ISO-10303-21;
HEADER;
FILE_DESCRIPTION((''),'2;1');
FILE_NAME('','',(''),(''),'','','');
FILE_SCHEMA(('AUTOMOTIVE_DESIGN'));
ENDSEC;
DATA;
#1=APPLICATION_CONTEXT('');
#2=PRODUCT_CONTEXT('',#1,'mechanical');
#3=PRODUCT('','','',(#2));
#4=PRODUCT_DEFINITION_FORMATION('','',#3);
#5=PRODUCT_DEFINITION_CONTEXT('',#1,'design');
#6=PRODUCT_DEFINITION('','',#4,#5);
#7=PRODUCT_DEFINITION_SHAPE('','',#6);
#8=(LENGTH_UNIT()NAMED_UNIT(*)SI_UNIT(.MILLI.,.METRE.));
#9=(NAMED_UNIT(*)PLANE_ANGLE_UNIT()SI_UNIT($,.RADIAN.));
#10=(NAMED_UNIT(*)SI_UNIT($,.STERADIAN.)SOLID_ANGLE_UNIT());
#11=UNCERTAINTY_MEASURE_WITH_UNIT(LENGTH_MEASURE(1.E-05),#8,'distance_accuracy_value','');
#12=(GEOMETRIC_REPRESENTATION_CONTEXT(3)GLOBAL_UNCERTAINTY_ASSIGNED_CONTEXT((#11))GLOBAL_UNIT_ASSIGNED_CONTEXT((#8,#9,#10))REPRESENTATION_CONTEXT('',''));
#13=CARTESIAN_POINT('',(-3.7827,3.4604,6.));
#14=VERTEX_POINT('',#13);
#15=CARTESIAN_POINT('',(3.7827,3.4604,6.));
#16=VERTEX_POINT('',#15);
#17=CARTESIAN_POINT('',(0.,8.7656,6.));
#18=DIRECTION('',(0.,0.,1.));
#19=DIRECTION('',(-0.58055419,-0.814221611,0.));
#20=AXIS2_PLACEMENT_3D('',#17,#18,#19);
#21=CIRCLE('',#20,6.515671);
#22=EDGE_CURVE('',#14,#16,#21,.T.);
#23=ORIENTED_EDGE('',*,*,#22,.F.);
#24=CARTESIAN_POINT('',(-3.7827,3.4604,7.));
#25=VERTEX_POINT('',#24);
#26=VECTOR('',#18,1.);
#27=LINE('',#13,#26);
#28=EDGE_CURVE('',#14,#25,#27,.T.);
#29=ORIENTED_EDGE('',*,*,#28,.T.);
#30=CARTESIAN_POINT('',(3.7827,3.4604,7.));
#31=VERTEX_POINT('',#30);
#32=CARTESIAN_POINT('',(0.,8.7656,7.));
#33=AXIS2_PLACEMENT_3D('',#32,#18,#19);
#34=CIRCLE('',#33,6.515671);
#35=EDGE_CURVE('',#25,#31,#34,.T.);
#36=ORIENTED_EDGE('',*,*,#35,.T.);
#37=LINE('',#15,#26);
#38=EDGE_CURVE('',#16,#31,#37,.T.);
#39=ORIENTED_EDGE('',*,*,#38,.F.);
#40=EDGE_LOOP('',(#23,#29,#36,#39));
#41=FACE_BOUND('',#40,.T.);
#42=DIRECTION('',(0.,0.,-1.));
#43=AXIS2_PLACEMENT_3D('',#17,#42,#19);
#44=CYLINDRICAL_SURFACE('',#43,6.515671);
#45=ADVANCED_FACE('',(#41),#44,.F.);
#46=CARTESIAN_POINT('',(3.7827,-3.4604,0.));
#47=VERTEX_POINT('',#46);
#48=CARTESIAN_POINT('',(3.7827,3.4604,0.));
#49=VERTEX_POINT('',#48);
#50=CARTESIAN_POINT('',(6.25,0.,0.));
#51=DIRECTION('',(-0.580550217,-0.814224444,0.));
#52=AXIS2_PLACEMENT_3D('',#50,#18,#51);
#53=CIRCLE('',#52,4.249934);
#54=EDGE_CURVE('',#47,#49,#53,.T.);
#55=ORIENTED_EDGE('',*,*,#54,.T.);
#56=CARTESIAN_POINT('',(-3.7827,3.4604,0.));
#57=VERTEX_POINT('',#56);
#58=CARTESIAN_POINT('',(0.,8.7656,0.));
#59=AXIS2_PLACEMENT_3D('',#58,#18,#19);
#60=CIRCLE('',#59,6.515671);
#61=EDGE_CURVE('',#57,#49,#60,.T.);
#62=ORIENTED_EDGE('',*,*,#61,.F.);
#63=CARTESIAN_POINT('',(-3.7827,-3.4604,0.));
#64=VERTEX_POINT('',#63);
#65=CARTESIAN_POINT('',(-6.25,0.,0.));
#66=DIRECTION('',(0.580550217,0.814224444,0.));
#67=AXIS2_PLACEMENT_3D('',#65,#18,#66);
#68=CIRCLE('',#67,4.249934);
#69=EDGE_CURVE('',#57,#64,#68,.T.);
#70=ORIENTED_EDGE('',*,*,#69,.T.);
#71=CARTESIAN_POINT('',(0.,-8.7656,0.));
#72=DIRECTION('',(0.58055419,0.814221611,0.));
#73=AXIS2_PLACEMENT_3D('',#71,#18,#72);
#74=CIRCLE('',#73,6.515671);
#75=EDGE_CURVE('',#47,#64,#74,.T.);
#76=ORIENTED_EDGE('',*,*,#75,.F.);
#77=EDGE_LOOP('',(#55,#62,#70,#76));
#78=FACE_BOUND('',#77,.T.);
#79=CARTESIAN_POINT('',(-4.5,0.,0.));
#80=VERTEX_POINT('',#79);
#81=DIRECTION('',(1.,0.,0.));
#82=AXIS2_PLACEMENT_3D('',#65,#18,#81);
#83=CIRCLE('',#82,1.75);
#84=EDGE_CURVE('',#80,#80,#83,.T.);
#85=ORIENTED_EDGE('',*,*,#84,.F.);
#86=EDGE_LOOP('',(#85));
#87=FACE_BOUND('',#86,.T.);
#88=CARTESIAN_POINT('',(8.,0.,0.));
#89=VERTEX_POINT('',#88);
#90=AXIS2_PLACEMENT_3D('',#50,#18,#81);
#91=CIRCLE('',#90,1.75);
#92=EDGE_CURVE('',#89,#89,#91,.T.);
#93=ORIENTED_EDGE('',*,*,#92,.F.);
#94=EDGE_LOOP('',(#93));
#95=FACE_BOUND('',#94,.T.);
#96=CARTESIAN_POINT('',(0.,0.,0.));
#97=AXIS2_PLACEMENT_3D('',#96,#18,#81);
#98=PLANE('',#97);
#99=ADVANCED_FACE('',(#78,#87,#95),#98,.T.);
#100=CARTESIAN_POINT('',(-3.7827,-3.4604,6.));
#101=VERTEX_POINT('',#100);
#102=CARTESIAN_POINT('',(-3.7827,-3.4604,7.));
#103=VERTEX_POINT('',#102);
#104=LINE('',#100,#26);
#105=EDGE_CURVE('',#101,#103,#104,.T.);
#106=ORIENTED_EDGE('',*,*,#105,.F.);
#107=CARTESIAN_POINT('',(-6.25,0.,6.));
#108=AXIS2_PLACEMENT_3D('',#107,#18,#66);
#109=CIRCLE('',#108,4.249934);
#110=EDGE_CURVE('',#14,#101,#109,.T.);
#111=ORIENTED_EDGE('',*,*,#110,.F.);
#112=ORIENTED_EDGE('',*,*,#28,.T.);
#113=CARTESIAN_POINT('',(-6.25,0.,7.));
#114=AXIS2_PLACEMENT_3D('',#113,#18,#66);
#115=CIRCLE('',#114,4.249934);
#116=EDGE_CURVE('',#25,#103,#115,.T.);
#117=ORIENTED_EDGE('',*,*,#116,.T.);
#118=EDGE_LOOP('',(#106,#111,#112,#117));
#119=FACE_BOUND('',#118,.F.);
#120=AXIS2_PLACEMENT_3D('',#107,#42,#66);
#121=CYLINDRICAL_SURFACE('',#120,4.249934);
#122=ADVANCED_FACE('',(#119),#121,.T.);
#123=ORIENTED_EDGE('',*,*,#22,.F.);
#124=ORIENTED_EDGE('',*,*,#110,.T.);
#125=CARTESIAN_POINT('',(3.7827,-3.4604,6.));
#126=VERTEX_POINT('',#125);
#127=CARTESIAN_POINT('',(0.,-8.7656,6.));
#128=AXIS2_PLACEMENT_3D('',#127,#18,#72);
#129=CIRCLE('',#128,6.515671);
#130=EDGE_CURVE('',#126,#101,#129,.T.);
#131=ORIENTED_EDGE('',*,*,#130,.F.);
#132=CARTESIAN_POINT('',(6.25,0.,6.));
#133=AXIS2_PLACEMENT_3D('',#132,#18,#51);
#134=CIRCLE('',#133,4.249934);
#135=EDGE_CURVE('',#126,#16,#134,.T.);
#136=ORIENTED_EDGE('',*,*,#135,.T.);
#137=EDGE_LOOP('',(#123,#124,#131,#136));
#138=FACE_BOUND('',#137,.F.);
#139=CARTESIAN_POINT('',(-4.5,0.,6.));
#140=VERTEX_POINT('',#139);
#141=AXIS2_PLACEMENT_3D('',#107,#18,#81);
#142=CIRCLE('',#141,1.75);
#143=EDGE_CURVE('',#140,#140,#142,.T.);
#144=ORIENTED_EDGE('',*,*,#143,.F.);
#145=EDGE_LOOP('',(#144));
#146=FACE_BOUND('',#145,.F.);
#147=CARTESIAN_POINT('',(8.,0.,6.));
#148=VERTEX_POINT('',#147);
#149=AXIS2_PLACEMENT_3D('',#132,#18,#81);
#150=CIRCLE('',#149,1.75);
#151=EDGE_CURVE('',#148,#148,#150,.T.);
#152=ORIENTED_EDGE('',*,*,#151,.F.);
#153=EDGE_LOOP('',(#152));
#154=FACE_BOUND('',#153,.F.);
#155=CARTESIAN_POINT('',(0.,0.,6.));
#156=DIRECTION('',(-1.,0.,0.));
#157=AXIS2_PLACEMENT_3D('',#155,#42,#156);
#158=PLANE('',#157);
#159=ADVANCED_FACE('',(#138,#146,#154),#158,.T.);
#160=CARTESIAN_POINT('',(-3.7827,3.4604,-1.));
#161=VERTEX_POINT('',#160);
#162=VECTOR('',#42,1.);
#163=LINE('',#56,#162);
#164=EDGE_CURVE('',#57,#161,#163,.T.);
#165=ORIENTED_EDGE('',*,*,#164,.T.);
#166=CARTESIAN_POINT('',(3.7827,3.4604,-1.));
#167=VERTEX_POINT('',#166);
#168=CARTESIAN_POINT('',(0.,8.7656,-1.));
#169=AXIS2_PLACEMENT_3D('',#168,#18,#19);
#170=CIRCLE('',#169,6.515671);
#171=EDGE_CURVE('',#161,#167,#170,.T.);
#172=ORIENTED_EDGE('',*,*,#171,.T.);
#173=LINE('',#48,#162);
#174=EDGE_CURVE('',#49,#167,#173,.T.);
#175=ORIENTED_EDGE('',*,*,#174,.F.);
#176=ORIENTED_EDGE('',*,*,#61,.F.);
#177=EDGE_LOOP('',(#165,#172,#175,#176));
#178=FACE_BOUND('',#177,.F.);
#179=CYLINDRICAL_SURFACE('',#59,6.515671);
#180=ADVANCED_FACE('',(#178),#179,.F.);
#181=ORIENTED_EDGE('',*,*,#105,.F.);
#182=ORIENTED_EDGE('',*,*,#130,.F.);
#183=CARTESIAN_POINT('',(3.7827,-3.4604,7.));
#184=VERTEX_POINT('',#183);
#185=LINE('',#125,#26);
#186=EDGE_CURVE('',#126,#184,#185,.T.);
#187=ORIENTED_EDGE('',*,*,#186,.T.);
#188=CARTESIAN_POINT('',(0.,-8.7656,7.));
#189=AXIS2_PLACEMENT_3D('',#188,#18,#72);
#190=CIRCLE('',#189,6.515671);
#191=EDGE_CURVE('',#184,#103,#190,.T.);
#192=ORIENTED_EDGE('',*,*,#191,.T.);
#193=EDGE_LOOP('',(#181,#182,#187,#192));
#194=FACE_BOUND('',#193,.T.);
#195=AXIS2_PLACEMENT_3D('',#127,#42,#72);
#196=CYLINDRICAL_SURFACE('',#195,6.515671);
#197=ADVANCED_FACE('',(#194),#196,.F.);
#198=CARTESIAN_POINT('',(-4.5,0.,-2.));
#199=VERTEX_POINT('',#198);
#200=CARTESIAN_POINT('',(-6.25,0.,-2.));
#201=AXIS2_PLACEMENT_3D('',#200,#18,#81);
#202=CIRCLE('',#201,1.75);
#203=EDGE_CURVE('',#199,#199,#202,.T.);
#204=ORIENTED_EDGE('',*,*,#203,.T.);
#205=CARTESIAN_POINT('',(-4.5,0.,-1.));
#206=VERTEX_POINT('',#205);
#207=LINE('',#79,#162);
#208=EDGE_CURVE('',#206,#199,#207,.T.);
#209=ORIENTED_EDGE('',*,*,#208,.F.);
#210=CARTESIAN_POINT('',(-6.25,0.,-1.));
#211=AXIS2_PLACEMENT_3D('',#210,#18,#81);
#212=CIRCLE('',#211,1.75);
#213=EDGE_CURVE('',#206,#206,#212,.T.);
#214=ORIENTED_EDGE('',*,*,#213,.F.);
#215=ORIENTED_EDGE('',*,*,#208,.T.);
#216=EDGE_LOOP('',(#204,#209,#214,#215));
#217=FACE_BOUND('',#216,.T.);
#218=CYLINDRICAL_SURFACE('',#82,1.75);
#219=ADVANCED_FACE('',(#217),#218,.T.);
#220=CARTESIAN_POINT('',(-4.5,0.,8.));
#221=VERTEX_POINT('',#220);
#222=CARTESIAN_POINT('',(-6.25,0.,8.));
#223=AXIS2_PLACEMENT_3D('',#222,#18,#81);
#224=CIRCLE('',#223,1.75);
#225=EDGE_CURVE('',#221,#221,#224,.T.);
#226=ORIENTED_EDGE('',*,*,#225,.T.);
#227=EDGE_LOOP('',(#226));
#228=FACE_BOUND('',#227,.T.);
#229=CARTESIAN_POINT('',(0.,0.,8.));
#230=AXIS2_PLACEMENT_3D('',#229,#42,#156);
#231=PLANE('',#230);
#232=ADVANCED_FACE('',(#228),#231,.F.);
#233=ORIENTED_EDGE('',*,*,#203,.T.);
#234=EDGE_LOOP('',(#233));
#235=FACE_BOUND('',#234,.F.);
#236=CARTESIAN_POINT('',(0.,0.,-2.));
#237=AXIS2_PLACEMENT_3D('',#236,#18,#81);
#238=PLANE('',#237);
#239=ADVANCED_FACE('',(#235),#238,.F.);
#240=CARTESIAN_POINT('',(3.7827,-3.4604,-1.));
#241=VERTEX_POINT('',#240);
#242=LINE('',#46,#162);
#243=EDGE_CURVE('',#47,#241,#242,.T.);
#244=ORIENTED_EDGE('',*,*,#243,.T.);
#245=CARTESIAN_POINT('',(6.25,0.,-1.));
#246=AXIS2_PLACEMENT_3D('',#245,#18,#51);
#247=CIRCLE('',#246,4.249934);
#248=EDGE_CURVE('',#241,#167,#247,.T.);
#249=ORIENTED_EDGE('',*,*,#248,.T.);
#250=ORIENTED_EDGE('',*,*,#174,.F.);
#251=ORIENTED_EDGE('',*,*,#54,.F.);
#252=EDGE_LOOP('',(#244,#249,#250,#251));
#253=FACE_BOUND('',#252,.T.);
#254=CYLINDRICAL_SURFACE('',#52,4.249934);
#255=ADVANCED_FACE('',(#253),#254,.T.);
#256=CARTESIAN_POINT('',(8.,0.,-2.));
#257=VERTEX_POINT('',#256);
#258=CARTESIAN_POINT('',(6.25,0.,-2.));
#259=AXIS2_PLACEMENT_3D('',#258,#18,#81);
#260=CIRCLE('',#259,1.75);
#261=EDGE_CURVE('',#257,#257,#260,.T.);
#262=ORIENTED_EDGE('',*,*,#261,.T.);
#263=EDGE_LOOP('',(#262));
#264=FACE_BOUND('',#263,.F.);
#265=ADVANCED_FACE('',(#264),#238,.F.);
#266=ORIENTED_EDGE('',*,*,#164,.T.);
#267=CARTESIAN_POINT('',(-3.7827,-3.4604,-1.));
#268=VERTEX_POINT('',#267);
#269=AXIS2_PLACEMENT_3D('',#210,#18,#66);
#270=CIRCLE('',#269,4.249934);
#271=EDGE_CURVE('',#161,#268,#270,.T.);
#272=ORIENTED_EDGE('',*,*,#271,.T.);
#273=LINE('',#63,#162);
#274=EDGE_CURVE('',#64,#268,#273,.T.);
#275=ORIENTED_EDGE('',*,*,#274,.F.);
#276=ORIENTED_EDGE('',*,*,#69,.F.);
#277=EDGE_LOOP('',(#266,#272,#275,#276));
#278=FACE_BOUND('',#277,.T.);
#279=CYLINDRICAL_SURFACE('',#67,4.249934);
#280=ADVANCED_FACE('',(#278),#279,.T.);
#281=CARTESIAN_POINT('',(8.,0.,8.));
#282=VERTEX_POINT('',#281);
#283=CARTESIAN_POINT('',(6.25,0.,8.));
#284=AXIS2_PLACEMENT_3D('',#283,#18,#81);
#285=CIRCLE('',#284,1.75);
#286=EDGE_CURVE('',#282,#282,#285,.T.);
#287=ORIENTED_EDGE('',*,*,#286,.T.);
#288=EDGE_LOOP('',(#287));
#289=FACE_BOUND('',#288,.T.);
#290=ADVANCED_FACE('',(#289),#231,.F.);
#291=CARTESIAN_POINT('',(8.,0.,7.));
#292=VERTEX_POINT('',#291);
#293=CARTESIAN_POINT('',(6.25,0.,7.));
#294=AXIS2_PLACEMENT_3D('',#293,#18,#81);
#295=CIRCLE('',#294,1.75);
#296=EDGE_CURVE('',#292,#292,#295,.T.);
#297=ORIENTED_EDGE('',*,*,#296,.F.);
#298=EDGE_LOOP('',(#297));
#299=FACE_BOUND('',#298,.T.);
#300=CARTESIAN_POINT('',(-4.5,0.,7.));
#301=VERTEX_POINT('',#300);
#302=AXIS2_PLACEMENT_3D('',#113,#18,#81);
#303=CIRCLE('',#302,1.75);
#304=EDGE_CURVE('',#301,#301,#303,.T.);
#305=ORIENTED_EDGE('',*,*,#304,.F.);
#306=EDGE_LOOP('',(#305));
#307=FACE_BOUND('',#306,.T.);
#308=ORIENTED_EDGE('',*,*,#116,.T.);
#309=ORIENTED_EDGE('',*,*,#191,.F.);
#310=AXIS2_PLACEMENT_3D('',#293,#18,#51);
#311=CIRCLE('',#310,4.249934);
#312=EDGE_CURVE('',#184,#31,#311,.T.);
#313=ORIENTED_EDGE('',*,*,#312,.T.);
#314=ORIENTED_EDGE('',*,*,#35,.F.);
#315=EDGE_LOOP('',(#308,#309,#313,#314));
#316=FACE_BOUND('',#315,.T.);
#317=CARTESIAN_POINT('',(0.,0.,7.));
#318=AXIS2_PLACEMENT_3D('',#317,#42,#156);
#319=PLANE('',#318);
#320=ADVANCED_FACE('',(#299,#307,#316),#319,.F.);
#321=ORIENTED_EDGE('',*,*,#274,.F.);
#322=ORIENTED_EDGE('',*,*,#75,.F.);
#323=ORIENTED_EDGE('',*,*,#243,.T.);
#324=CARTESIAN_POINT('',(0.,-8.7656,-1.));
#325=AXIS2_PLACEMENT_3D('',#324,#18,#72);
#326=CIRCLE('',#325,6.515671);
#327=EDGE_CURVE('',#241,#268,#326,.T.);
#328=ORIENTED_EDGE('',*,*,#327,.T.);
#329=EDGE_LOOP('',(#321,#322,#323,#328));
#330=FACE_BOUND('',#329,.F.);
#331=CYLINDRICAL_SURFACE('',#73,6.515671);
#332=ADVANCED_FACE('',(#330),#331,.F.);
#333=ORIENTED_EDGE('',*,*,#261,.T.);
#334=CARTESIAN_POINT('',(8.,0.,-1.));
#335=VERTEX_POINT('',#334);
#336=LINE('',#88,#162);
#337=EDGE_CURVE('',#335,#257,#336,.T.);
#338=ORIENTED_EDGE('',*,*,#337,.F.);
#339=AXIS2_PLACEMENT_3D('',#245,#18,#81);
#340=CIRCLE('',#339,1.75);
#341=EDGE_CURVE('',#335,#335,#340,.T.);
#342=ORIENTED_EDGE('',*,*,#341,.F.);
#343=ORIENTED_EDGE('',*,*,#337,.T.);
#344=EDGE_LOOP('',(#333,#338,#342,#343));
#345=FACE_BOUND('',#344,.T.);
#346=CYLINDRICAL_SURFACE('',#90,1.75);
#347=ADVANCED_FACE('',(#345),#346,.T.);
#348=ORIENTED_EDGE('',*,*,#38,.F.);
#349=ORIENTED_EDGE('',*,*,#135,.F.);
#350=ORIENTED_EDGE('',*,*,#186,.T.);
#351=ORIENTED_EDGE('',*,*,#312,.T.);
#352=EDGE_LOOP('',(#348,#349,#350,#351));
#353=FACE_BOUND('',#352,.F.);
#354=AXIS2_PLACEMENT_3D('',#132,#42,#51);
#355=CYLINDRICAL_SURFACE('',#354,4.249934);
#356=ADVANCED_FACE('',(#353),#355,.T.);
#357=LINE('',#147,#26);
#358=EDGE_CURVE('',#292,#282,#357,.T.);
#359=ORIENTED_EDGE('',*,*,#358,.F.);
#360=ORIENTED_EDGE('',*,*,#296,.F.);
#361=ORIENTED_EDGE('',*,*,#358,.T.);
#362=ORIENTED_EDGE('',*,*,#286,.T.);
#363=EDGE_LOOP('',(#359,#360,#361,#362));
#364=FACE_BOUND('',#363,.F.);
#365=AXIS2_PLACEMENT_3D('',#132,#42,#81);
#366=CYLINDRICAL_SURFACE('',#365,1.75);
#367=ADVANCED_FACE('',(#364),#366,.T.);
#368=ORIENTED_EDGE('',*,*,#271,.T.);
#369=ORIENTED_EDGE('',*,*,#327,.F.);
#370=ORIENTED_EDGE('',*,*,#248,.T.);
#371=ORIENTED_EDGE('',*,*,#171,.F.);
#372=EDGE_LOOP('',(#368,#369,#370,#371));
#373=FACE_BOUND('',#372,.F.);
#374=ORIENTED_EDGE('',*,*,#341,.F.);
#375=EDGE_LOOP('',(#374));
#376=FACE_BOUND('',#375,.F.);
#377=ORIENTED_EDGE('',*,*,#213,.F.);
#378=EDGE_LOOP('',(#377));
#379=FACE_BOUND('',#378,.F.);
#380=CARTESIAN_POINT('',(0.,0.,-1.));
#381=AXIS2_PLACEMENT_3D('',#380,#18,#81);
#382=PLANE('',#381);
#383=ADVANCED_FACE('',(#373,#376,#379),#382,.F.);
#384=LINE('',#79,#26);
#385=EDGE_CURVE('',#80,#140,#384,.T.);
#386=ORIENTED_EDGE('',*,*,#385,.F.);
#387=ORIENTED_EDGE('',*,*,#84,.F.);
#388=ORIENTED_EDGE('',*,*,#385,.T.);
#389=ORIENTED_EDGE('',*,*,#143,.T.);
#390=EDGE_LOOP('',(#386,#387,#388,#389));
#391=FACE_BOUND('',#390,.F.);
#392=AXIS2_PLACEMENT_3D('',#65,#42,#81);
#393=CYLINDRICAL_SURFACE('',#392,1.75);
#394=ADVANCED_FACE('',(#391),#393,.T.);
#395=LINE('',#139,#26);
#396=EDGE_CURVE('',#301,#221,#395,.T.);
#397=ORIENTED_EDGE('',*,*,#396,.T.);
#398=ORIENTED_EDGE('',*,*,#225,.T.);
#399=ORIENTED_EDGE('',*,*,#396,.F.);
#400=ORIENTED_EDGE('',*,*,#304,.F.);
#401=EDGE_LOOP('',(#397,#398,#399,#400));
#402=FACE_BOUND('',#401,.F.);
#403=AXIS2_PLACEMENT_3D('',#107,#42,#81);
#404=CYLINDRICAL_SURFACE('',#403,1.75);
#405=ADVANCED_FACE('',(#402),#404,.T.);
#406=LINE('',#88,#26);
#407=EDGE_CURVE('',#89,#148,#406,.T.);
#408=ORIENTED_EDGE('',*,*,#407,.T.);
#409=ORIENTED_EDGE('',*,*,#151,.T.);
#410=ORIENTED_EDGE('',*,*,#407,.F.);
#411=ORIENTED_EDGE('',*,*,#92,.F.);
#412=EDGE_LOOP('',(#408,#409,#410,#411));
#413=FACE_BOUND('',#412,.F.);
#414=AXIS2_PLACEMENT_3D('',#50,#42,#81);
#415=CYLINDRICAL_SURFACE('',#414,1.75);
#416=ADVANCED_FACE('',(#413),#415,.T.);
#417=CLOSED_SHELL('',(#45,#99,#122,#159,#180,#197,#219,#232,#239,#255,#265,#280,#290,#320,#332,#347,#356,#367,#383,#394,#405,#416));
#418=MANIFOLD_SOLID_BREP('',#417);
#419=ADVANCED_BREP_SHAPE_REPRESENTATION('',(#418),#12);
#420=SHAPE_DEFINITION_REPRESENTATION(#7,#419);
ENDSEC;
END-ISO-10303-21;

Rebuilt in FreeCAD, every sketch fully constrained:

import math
import FreeCAD as App
import Part
import Sketcher
from FreeCAD import Vector
Q = App.Units.Quantity

doc = App.newDocument("Part")
params = doc.addObject("Spreadsheet::Sheet", "Params")
for row, (alias, value) in enumerate([
    ("sketch1_diameter", "3.5 mm"),
    ("sketch1_radius", "4.25 mm"),
    ("pad1_length", "1 mm"),
    ("sketch2_diameter", "3.5 mm"),
    ("pad2_length", "2 mm"),
    ("sketch3_diameter", "3.5 mm"),
    ("pad3_length", "6 mm"),
], start=1):
    params.set(f"A{row}", alias)
    params.set(f"B{row}", "=" + value)
    params.setAlias(f"B{row}", alias)

body = doc.addObject("PartDesign::Body", "Body")

# Sketch on XY plane
sketch1 = body.newObject("Sketcher::SketchObject", "Sketch")
sketch1.AttachmentSupport = (doc.getObject("XY_Plane"), [""])
sketch1.MapMode = "FlatFace"
sketch1.addGeometry(Part.ArcOfCircle(Part.Circle(Vector(0, 8.8, 0), Vector(0, 0, 1), 6.5), math.radians(-125), math.radians(-55)), False)
sketch1.addGeometry(Part.ArcOfCircle(Part.Circle(Vector(-6.2, 0, 0), Vector(0, 0, 1), 4.2), math.radians(55), math.radians(305)), False)
sketch1.addGeometry(Part.ArcOfCircle(Part.Circle(Vector(0, -8.8, 0), Vector(0, 0, 1), 6.5), math.radians(55), math.radians(125)), False)
sketch1.addGeometry(Part.ArcOfCircle(Part.Circle(Vector(6.2, 0, 0), Vector(0, 0, 1), 4.2), math.radians(-125), math.radians(125)), False)
sketch1.addGeometry(Part.Circle(Vector(-6.2, 0, 0), Vector(0, 0, 1), 1.8), False)
sketch1.addGeometry(Part.Circle(Vector(6.2, 0, 0), Vector(0, 0, 1), 1.8), False)
sketch1.addConstraint(Sketcher.Constraint("Tangent", 0, 1, 1, 1))
sketch1.addConstraint(Sketcher.Constraint("Tangent", 1, 2, 2, 2))
sketch1.addConstraint(Sketcher.Constraint("Tangent", 2, 1, 3, 1))
sketch1.addConstraint(Sketcher.Constraint("Tangent", 3, 2, 0, 2))
sketch1.addConstraint(Sketcher.Constraint("Coincident", 4, 3, 1, 3))
sketch1.addConstraint(Sketcher.Constraint("Coincident", 5, 3, 3, 3))
sketch1.addConstraint(Sketcher.Constraint("Equal", 0, 2))
sketch1.addConstraint(Sketcher.Constraint("Equal", 1, 3))
sketch1.addConstraint(Sketcher.Constraint("Equal", 4, 5))
sketch1.addConstraint(Sketcher.Constraint("Symmetric", 0, 3, 2, 3, -1, 1))
sketch1.addConstraint(Sketcher.Constraint("PointOnObject", 0, 3, -2))
sketch1.addConstraint(Sketcher.Constraint("Diameter", 4, Q("3.5 mm")))
sketch1.addConstraint(Sketcher.Constraint("Radius", 1, Q("4.25 mm")))
sketch1.addConstraint(Sketcher.Constraint("DistanceX", 1, 3, 3, 3, Q("12.5 mm")))
sketch1.addConstraint(Sketcher.Constraint("Radius", 0, Q("6.5157 mm")))
sketch1.setExpression("Constraints[11]", "Params.sketch1_diameter")
sketch1.setExpression("Constraints[12]", "Params.sketch1_radius")
pad1 = body.newObject("PartDesign::Pad", "Pad")
pad1.Profile = sketch1
pad1.setExpression("Length", "Params.pad1_length")
pad1.Reversed = True

# Sketch on XY plane
sketch2 = body.newObject("Sketcher::SketchObject", "Sketch001")
sketch2.AttachmentSupport = (doc.getObject("XY_Plane"), [""])
sketch2.MapMode = "FlatFace"
sketch2.addGeometry(Part.Circle(Vector(-6.2, 0, 0), Vector(0, 0, 1), 1.8), False)
sketch2.addGeometry(Part.Circle(Vector(6.2, 0, 0), Vector(0, 0, 1), 1.8), False)
sketch2.addConstraint(Sketcher.Constraint("Equal", 0, 1))
sketch2.addConstraint(Sketcher.Constraint("Symmetric", 0, 3, 1, 3, -1, 1))
sketch2.addConstraint(Sketcher.Constraint("PointOnObject", 0, 3, -1))
sketch2.addConstraint(Sketcher.Constraint("Diameter", 0, Q("3.5 mm")))
sketch2.addConstraint(Sketcher.Constraint("DistanceX", 0, 3, 1, 3, Q("12.5 mm")))
sketch2.setExpression("Constraints[3]", "Params.sketch2_diameter")
pad2 = body.newObject("PartDesign::Pad", "Pad001")
pad2.Profile = sketch2
pad2.setExpression("Length", "Params.pad2_length")
pad2.Reversed = True

# Sketch on XY plane
sketch3 = body.newObject("Sketcher::SketchObject", "Sketch002")
sketch3.AttachmentSupport = (doc.getObject("XY_Plane"), [""])
sketch3.MapMode = "FlatFace"
sketch3.addGeometry(Part.Circle(Vector(-6.2, 0, 0), Vector(0, 0, 1), 1.8), False)
sketch3.addGeometry(Part.Circle(Vector(6.2, 0, 0), Vector(0, 0, 1), 1.8), False)
sketch3.addConstraint(Sketcher.Constraint("Equal", 0, 1))
sketch3.addConstraint(Sketcher.Constraint("Symmetric", 0, 3, 1, 3, -1, 1))
sketch3.addConstraint(Sketcher.Constraint("PointOnObject", 0, 3, -1))
sketch3.addConstraint(Sketcher.Constraint("Diameter", 0, Q("3.5 mm")))
sketch3.addConstraint(Sketcher.Constraint("DistanceX", 0, 3, 1, 3, Q("12.5 mm")))
sketch3.setExpression("Constraints[3]", "Params.sketch3_diameter")
pad3 = body.newObject("PartDesign::Pad", "Pad002")
pad3.Profile = sketch3
pad3.setExpression("Length", "Params.pad3_length")
doc.recompute()

datumplane = body.newObject("PartDesign::Plane", "DatumPlane")
datumplane.AttachmentSupport = (doc.getObject("XY_Plane"), [""])
datumplane.MapMode = "FlatFace"
datumplane.AttachmentOffset = App.Placement(Vector(0, 0, 3), App.Rotation())
mirrored = body.newObject("PartDesign::Mirrored", "Mirrored")
mirrored.Originals = [pad1, pad2]
mirrored.MirrorPlane = (datumplane, [""])
body.Tip = mirrored

doc.recompute()
